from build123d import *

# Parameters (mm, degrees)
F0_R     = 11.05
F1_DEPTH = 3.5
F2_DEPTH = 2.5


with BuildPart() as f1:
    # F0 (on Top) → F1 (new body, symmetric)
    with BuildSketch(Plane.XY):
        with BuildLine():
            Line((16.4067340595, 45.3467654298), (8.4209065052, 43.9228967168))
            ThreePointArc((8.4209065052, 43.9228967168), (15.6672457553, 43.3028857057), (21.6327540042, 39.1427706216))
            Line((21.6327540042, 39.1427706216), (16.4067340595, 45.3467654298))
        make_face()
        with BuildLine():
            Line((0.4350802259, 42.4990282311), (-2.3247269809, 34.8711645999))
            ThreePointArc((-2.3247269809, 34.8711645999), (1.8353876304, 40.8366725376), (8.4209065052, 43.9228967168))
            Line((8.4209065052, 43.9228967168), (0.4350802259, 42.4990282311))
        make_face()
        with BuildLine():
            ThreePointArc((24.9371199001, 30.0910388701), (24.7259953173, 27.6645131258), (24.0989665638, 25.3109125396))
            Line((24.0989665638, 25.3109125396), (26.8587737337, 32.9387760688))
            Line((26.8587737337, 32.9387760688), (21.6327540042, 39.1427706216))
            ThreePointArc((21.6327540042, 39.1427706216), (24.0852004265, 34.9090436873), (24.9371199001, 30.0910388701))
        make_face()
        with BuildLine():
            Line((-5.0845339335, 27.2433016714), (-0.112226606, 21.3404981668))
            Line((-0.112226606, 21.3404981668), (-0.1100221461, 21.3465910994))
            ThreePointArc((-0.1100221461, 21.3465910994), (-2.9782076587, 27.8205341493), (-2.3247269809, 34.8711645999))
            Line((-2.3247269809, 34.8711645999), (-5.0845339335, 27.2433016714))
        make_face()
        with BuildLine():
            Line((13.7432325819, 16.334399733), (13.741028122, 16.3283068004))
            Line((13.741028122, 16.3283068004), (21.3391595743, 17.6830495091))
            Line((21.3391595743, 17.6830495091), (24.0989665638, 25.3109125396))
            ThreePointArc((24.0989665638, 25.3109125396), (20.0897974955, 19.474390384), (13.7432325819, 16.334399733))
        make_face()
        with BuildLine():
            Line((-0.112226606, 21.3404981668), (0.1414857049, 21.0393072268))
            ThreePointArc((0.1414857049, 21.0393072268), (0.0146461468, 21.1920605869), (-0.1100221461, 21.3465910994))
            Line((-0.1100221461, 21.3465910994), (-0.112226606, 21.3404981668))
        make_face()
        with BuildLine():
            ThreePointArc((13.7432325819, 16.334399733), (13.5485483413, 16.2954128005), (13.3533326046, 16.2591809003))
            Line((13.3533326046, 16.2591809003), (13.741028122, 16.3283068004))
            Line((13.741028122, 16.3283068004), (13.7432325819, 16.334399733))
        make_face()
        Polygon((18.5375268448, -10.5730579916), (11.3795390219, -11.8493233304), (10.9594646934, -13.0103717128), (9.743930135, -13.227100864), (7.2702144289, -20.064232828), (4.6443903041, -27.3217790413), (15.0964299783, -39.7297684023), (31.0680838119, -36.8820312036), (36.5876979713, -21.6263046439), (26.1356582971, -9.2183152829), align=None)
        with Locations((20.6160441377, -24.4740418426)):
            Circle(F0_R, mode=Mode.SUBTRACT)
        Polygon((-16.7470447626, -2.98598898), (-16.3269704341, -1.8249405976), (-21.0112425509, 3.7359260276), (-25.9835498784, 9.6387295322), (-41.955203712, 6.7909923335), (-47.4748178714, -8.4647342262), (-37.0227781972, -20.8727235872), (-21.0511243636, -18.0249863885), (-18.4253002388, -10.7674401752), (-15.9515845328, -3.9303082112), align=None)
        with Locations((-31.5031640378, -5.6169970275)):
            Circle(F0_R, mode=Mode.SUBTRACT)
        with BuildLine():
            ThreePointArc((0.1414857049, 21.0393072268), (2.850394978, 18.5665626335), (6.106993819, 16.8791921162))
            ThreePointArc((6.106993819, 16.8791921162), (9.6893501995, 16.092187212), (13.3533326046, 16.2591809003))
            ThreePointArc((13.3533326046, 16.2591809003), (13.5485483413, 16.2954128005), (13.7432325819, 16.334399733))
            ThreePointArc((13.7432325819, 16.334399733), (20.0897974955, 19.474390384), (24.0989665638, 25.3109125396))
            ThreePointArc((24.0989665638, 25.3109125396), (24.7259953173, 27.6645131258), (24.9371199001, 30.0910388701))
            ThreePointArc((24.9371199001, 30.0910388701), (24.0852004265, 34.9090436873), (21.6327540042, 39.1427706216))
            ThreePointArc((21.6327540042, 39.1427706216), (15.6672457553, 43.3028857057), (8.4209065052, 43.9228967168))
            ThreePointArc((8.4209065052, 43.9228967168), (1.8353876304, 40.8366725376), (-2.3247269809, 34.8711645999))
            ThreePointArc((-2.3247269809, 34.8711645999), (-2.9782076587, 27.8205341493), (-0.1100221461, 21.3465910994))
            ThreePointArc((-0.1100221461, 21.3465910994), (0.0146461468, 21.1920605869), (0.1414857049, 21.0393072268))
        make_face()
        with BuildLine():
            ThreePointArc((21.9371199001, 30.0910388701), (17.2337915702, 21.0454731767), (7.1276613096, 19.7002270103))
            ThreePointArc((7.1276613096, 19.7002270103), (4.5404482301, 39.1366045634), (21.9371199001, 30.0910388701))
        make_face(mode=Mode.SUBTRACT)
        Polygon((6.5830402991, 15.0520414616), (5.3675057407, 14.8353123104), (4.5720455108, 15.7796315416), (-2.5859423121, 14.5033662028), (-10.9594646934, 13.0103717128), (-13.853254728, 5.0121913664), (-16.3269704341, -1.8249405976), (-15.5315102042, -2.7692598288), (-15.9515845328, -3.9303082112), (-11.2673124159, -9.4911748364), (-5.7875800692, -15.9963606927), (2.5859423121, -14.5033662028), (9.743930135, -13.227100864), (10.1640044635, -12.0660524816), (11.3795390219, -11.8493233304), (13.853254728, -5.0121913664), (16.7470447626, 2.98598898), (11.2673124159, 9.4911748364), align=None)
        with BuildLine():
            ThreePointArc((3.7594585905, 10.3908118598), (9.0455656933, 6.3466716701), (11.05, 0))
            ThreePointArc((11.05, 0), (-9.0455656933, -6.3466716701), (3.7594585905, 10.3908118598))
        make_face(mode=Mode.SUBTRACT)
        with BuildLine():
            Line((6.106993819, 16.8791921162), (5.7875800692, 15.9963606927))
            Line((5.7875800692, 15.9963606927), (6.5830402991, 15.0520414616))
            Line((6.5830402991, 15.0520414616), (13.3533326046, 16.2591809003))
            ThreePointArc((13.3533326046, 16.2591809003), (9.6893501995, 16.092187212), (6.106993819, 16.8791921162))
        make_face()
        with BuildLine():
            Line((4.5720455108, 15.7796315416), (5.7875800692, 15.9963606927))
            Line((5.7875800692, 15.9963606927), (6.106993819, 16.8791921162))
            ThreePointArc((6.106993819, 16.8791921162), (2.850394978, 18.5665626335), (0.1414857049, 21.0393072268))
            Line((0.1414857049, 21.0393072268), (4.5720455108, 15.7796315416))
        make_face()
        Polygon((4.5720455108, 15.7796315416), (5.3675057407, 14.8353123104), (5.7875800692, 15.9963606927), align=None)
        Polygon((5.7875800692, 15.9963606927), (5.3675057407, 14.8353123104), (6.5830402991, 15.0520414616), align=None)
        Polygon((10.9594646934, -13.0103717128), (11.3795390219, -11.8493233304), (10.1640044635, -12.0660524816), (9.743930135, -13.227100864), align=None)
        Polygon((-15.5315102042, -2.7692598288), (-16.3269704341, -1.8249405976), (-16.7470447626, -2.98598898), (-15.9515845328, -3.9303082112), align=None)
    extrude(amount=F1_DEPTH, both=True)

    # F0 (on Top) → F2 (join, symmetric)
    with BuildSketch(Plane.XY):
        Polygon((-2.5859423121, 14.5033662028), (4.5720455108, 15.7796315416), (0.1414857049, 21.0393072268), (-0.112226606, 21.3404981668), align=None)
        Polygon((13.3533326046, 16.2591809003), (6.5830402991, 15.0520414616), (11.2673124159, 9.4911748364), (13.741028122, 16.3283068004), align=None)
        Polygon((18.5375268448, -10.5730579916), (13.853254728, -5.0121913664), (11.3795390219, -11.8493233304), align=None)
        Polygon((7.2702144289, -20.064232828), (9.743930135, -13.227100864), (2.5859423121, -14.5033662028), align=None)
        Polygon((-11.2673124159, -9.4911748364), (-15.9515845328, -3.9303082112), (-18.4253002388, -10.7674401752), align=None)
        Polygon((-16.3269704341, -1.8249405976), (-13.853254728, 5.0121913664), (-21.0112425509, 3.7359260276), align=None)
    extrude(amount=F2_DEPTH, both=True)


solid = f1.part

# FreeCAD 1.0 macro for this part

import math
import FreeCAD as App
import Part
import Sketcher
from FreeCAD import Vector


def add_polygon(sketch, points):
    """Adds a closed chain of lines whose ends are joined by coincident constraints."""
    first, n = sketch.GeometryCount, len(points)
    for a, b in zip(points, points[1:] + points[:1]):
        sketch.addGeometry(Part.LineSegment(App.Vector(*a, 0), App.Vector(*b, 0)), False)
    for i in range(n):
        sketch.addConstraint(Sketcher.Constraint("Coincident", first + i, 2, first + (i + 1) % n, 1))

doc = App.newDocument("Part")
body = doc.addObject("PartDesign::Body", "Body")

sketch1 = body.newObject("Sketcher::SketchObject", "Sketch")
sketch1.AttachmentSupport = (doc.getObject("XY_Plane"), [""])
sketch1.MapMode = "FlatFace"
add_polygon(sketch1, [(16.75, 2.99), (6.58, 15.05), (13.35, 16.26), (13.74, 16.33), (21.34, 17.68), (24.1, 25.31), (26.86, 32.94), (21.63, 39.14), (16.41, 45.35), (8.42, 43.92), (0.44, 42.5), (-2.32, 34.87), (-5.08, 27.24), (0.14, 21.04), (4.57, 15.78), (-2.59, 14.5), (-10.96, 13.01), (-13.85, 5.01), (-16.33, -1.82), (-21.01, 3.74), (-25.98, 9.64), (-41.96, 6.79), (-47.47, -8.46), (-37.02, -20.87), (-21.05, -18.02), (-18.43, -10.77), (-15.95, -3.93), (-11.27, -9.49), (-5.79, -16), (2.59, -14.5), (9.74, -13.23), (7.27, -20.06), (4.64, -27.32), (15.1, -39.73), (31.07, -36.88), (36.59, -21.63), (26.14, -9.22), (18.54, -10.57), (11.38, -11.85), (13.85, -5.01)])
sketch1.addGeometry(Part.ArcOfCircle(Part.Circle(Vector(0, 0, 0), Vector(0, 0, 1), 11.05), math.radians(0), math.radians(70)), False)
sketch1.addGeometry(Part.ArcOfCircle(Part.Circle(Vector(0, 0, 0), Vector(0, 0, 1), 11.05), math.radians(70), math.radians(360)), False)
sketch1.addGeometry(Part.ArcOfCircle(Part.Circle(Vector(10.89, 30.09, 0), Vector(0, 0, 1), 11.05), math.radians(0), math.radians(250)), False)
sketch1.addGeometry(Part.ArcOfCircle(Part.Circle(Vector(10.89, 30.09, 0), Vector(0, 0, 1), 11.05), math.radians(-110), math.radians(0)), False)
sketch1.addGeometry(Part.Circle(Vector(20.62, -24.47, 0), Vector(0, 0, 1), 11.05), False)
sketch1.addGeometry(Part.Circle(Vector(-31.5, -5.62, 0), Vector(0, 0, 1), 11.05), False)
sketch1.addConstraint(Sketcher.Constraint("Tangent", 40, 1, 41, 2))
sketch1.addConstraint(Sketcher.Constraint("Coincident", 41, 1, 40, 2))
sketch1.addConstraint(Sketcher.Constraint("Tangent", 42, 1, 43, 2))
sketch1.addConstraint(Sketcher.Constraint("Coincident", 43, 1, 42, 2))
sketch1.addConstraint(Sketcher.Constraint("Coincident", 40, 3, -1, 1))
sketch1.addConstraint(Sketcher.Constraint("Equal", 41, 42))
sketch1.addConstraint(Sketcher.Constraint("Equal", 43, 44))
sketch1.addConstraint(Sketcher.Constraint("Equal", 44, 45))
sketch1.addConstraint(Sketcher.Constraint("Symmetric", 14, 2, 28, 2, -1, 1))
sketch1.addConstraint(Sketcher.Constraint("Symmetric", 16, 2, 38, 2, -1, 1))
sketch1.addConstraint(Sketcher.Constraint("PointOnObject", 40, 1, -1))
sketch1.addConstraint(Sketcher.Constraint("Parallel", 1, 2))
sketch1.addConstraint(Sketcher.Constraint("Parallel", 2, 3))
sketch1.addConstraint(Sketcher.Constraint("Parallel", 4, 5))
sketch1.addConstraint(Sketcher.Constraint("Parallel", 0, 6))
sketch1.addConstraint(Sketcher.Constraint("Parallel", 6, 7))
sketch1.addConstraint(Sketcher.Constraint("Parallel", 3, 8))
sketch1.addConstraint(Sketcher.Constraint("Parallel", 8, 9))
sketch1.addConstraint(Sketcher.Constraint("Parallel", 5, 10))
sketch1.addConstraint(Sketcher.Constraint("Parallel", 10, 11))
sketch1.addConstraint(Sketcher.Constraint("Parallel", 7, 12))
sketch1.addConstraint(Sketcher.Constraint("Parallel", 12, 13))
sketch1.addConstraint(Sketcher.Constraint("Parallel", 9, 14))
sketch1.addConstraint(Sketcher.Constraint("Parallel", 14, 15))
sketch1.addConstraint(Sketcher.Constraint("Parallel", 11, 16))
sketch1.addConstraint(Sketcher.Constraint("Parallel", 16, 17))
sketch1.addConstraint(Sketcher.Constraint("Parallel", 13, 18))
sketch1.addConstraint(Sketcher.Constraint("Parallel", 18, 19))
sketch1.addConstraint(Sketcher.Constraint("Parallel", 15, 20))
sketch1.addConstraint(Sketcher.Constraint("Parallel", 17, 21))
sketch1.addConstraint(Sketcher.Constraint("Parallel", 19, 22))
sketch1.addConstraint(Sketcher.Constraint("Parallel", 20, 23))
sketch1.addConstraint(Sketcher.Constraint("Parallel", 21, 24))
sketch1.addConstraint(Sketcher.Constraint("Parallel", 24, 25))
sketch1.addConstraint(Sketcher.Constraint("Parallel", 22, 26))
sketch1.addConstraint(Sketcher.Constraint("Parallel", 26, 27))
sketch1.addConstraint(Sketcher.Constraint("Parallel", 23, 28))
sketch1.addConstraint(Sketcher.Constraint("Parallel", 28, 29))
sketch1.addConstraint(Sketcher.Constraint("Parallel", 25, 30))
sketch1.addConstraint(Sketcher.Constraint("Parallel", 30, 31))
sketch1.addConstraint(Sketcher.Constraint("Parallel", 27, 32))
sketch1.addConstraint(Sketcher.Constraint("Parallel", 29, 33))
sketch1.addConstraint(Sketcher.Constraint("Parallel", 31, 34))
sketch1.addConstraint(Sketcher.Constraint("Parallel", 32, 35))
sketch1.addConstraint(Sketcher.Constraint("Parallel", 33, 36))
sketch1.addConstraint(Sketcher.Constraint("Parallel", 36, 37))
sketch1.addConstraint(Sketcher.Constraint("Parallel", 34, 38))
sketch1.addConstraint(Sketcher.Constraint("Parallel", 38, 39))
sketch1.addConstraint(Sketcher.Constraint("Horizontal", 43, 3, 42, 1))
sketch1.addConstraint(Sketcher.Constraint("Equal", 4, 5))
sketch1.addConstraint(Sketcher.Constraint("Equal", 5, 6))
sketch1.addConstraint(Sketcher.Constraint("Equal", 6, 7))
sketch1.addConstraint(Sketcher.Constraint("Equal", 7, 8))
sketch1.addConstraint(Sketcher.Constraint("Equal", 8, 9))
sketch1.addConstraint(Sketcher.Constraint("Equal", 9, 10))
sketch1.addConstraint(Sketcher.Constraint("Equal", 10, 11))
sketch1.addConstraint(Sketcher.Constraint("Equal", 11, 12))
sketch1.addConstraint(Sketcher.Constraint("Equal", 1, 13))
sketch1.addConstraint(Sketcher.Constraint("Equal", 15, 16))
sketch1.addConstraint(Sketcher.Constraint("Equal", 14, 17))
sketch1.addConstraint(Sketcher.Constraint("Equal", 17, 18))
sketch1.addConstraint(Sketcher.Constraint("Equal", 3, 19))
sketch1.addConstraint(Sketcher.Constraint("Equal", 20, 21))
sketch1.addConstraint(Sketcher.Constraint("Equal", 21, 22))
sketch1.addConstraint(Sketcher.Constraint("Equal", 22, 23))
sketch1.addConstraint(Sketcher.Constraint("Equal", 19, 24))
sketch1.addConstraint(Sketcher.Constraint("Equal", 18, 25))
sketch1.addConstraint(Sketcher.Constraint("Equal", 25, 26))
sketch1.addConstraint(Sketcher.Constraint("Equal", 16, 27))
sketch1.addConstraint(Sketcher.Constraint("Equal", 27, 28))
sketch1.addConstraint(Sketcher.Constraint("Equal", 26, 29))
sketch1.addConstraint(Sketcher.Constraint("Equal", 29, 30))
sketch1.addConstraint(Sketcher.Constraint("Equal", 24, 31))
sketch1.addConstraint(Sketcher.Constraint("Equal", 23, 32))
sketch1.addConstraint(Sketcher.Constraint("Equal", 32, 33))
sketch1.addConstraint(Sketcher.Constraint("Equal", 33, 34))
sketch1.addConstraint(Sketcher.Constraint("Equal", 34, 35))
sketch1.addConstraint(Sketcher.Constraint("Equal", 31, 36))
sketch1.addConstraint(Sketcher.Constraint("Equal", 30, 37))
sketch1.addConstraint(Sketcher.Constraint("Equal", 28, 39))
sketch1.addConstraint(Sketcher.Constraint("Diameter", 44, 22.1))
sketch1.addConstraint(Sketcher.Constraint("DistanceY", -1, 1, 11, 2, 27.243302))
sketch1.addConstraint(Sketcher.Constraint("DistanceX", 24, 2, -1, 1, 18.4253))
sketch1.addConstraint(Sketcher.Constraint("DistanceY", 29, 2, -1, 1, 13.227101))
sketch1.addConstraint(Sketcher.Constraint("DistanceY", 10, 2, 7, 2, 10.475601))
sketch1.addConstraint(Sketcher.Constraint("DistanceY", 16, 2, 20, 2, 1.778801))
sketch1.addConstraint(Sketcher.Constraint("DistanceY", 24, 2, 17, 2, 8.9425))
sketch1.addConstraint(Sketcher.Constraint("DistanceX", 28, 2, 44, 3, 18.030102))
sketch1.addConstraint(Sketcher.Constraint("DistanceX", 29, 2, 32, 2, 5.3525))
sketch1.addConstraint(Sketcher.Constraint("DistanceY", 33, 2, 30, 2, 16.817798))
sketch1.addConstraint(Sketcher.Constraint("DistanceX", 14, 2, 41, 1, 6.345401))
sketch1.addConstraint(Sketcher.Constraint("DistanceX", -1, 1, 42, 3, 10.88712))
sketch1.addConstraint(Sketcher.Constraint("DistanceY", -1, 1, 42, 3, 30.091039))
sketch1.addConstraint(Sketcher.Constraint("DistanceY", 44, 3, -1, 1, 24.474042))
sketch1.addConstraint(Sketcher.Constraint("DistanceX", -1, 1, 43, 1, 7.127661))
sketch1.addConstraint(Sketcher.Constraint("DistanceX", 45, 3, 44, 3, 52.119208))
sketch1.addConstraint(Sketcher.Constraint("DistanceY", 45, 3, 16, 2, 10.629188))
pad1 = body.newObject("PartDesign::Pad", "Pad")
pad1.Profile = sketch1
pad1.Length = 7
pad1.Midplane = True

sketch2 = body.newObject("Sketcher::SketchObject", "Sketch001")
sketch2.AttachmentSupport = (doc.getObject("XY_Plane"), [""])
sketch2.MapMode = "FlatFace"
add_polygon(sketch2, [(-2.59, 14.5), (4.57, 15.78), (0.14, 21.04), (-0.11, 21.34)])
add_polygon(sketch2, [(13.35, 16.26), (6.58, 15.05), (11.27, 9.49), (13.74, 16.33)])
add_polygon(sketch2, [(18.54, -10.57), (13.85, -5.01), (11.38, -11.85)])
add_polygon(sketch2, [(7.27, -20.06), (9.74, -13.23), (2.59, -14.5)])
add_polygon(sketch2, [(-11.27, -9.49), (-15.95, -3.93), (-18.43, -10.77)])
add_polygon(sketch2, [(-16.33, -1.82), (-13.85, 5.01), (-21.01, 3.74)])
sketch2.addConstraint(Sketcher.Constraint("Symmetric", 3, 2, 12, 2, -1, 1))
sketch2.addConstraint(Sketcher.Constraint("Symmetric", 5, 2, 16, 2, -1, 1))
sketch2.addConstraint(Sketcher.Constraint("Symmetric", 8, 2, 17, 2, -1, 1))
sketch2.addConstraint(Sketcher.Constraint("Parallel", 1, 2))
sketch2.addConstraint(Sketcher.Constraint("Parallel", 0, 4))
sketch2.addConstraint(Sketcher.Constraint("Parallel", 2, 5))
sketch2.addConstraint(Sketcher.Constraint("Parallel", 3, 6))
sketch2.addConstraint(Sketcher.Constraint("Parallel", 4, 7))
sketch2.addConstraint(Sketcher.Constraint("Parallel", 5, 8))
sketch2.addConstraint(Sketcher.Constraint("Parallel", 6, 9))
sketch2.addConstraint(Sketcher.Constraint("Parallel", 7, 10))
sketch2.addConstraint(Sketcher.Constraint("Parallel", 9, 11))
sketch2.addConstraint(Sketcher.Constraint("Parallel", 10, 12))
sketch2.addConstraint(Sketcher.Constraint("Parallel", 8, 13))
sketch2.addConstraint(Sketcher.Constraint("Parallel", 13, 14))
sketch2.addConstraint(Sketcher.Constraint("Parallel", 11, 15))
sketch2.addConstraint(Sketcher.Constraint("Parallel", 12, 16))
sketch2.addConstraint(Sketcher.Constraint("Parallel", 15, 17))
sketch2.addConstraint(Sketcher.Constraint("Parallel", 16, 18))
sketch2.addConstraint(Sketcher.Constraint("Parallel", 14, 19))
sketch2.addConstraint(Sketcher.Constraint("Equal", 0, 3))
sketch2.addConstraint(Sketcher.Constraint("Equal", 1, 4))
sketch2.addConstraint(Sketcher.Constraint("Equal", 3, 5))
sketch2.addConstraint(Sketcher.Constraint("Equal", 5, 6))
sketch2.addConstraint(Sketcher.Constraint("Equal", 6, 8))
sketch2.addConstraint(Sketcher.Constraint("Equal", 10, 11))
sketch2.addConstraint(Sketcher.Constraint("Equal", 13, 14))
sketch2.addConstraint(Sketcher.Constraint("Equal", 16, 17))
sketch2.addConstraint(Sketcher.Constraint("DistanceY", 6, 2, 1, 2, 4.711))
sketch2.addConstraint(Sketcher.Constraint("DistanceY", -1, 1, 2, 2, 21.340498))
sketch2.addConstraint(Sketcher.Constraint("DistanceY", 11, 2, -1, 1, 13.227101))
sketch2.addConstraint(Sketcher.Constraint("DistanceX", 15, 2, -1, 1, 18.4253))
sketch2.addConstraint(Sketcher.Constraint("DistanceY", 8, 2, 6, 2, 21.340498))
sketch2.addConstraint(Sketcher.Constraint("DistanceX", 4, 2, 9, 2, 4.796499))
sketch2.addConstraint(Sketcher.Constraint("DistanceX", 14, 2, 13, 2, 23.221799))
sketch2.addConstraint(Sketcher.Constraint("DistanceY", 14, 2, 17, 2, 8.9425))
sketch2.addConstraint(Sketcher.Constraint("Distance", 2, 0.393809))
pad2 = body.newObject("PartDesign::Pad", "Pad001")
pad2.Profile = sketch2
pad2.Length = 5
pad2.Midplane = True

doc.recompute()
